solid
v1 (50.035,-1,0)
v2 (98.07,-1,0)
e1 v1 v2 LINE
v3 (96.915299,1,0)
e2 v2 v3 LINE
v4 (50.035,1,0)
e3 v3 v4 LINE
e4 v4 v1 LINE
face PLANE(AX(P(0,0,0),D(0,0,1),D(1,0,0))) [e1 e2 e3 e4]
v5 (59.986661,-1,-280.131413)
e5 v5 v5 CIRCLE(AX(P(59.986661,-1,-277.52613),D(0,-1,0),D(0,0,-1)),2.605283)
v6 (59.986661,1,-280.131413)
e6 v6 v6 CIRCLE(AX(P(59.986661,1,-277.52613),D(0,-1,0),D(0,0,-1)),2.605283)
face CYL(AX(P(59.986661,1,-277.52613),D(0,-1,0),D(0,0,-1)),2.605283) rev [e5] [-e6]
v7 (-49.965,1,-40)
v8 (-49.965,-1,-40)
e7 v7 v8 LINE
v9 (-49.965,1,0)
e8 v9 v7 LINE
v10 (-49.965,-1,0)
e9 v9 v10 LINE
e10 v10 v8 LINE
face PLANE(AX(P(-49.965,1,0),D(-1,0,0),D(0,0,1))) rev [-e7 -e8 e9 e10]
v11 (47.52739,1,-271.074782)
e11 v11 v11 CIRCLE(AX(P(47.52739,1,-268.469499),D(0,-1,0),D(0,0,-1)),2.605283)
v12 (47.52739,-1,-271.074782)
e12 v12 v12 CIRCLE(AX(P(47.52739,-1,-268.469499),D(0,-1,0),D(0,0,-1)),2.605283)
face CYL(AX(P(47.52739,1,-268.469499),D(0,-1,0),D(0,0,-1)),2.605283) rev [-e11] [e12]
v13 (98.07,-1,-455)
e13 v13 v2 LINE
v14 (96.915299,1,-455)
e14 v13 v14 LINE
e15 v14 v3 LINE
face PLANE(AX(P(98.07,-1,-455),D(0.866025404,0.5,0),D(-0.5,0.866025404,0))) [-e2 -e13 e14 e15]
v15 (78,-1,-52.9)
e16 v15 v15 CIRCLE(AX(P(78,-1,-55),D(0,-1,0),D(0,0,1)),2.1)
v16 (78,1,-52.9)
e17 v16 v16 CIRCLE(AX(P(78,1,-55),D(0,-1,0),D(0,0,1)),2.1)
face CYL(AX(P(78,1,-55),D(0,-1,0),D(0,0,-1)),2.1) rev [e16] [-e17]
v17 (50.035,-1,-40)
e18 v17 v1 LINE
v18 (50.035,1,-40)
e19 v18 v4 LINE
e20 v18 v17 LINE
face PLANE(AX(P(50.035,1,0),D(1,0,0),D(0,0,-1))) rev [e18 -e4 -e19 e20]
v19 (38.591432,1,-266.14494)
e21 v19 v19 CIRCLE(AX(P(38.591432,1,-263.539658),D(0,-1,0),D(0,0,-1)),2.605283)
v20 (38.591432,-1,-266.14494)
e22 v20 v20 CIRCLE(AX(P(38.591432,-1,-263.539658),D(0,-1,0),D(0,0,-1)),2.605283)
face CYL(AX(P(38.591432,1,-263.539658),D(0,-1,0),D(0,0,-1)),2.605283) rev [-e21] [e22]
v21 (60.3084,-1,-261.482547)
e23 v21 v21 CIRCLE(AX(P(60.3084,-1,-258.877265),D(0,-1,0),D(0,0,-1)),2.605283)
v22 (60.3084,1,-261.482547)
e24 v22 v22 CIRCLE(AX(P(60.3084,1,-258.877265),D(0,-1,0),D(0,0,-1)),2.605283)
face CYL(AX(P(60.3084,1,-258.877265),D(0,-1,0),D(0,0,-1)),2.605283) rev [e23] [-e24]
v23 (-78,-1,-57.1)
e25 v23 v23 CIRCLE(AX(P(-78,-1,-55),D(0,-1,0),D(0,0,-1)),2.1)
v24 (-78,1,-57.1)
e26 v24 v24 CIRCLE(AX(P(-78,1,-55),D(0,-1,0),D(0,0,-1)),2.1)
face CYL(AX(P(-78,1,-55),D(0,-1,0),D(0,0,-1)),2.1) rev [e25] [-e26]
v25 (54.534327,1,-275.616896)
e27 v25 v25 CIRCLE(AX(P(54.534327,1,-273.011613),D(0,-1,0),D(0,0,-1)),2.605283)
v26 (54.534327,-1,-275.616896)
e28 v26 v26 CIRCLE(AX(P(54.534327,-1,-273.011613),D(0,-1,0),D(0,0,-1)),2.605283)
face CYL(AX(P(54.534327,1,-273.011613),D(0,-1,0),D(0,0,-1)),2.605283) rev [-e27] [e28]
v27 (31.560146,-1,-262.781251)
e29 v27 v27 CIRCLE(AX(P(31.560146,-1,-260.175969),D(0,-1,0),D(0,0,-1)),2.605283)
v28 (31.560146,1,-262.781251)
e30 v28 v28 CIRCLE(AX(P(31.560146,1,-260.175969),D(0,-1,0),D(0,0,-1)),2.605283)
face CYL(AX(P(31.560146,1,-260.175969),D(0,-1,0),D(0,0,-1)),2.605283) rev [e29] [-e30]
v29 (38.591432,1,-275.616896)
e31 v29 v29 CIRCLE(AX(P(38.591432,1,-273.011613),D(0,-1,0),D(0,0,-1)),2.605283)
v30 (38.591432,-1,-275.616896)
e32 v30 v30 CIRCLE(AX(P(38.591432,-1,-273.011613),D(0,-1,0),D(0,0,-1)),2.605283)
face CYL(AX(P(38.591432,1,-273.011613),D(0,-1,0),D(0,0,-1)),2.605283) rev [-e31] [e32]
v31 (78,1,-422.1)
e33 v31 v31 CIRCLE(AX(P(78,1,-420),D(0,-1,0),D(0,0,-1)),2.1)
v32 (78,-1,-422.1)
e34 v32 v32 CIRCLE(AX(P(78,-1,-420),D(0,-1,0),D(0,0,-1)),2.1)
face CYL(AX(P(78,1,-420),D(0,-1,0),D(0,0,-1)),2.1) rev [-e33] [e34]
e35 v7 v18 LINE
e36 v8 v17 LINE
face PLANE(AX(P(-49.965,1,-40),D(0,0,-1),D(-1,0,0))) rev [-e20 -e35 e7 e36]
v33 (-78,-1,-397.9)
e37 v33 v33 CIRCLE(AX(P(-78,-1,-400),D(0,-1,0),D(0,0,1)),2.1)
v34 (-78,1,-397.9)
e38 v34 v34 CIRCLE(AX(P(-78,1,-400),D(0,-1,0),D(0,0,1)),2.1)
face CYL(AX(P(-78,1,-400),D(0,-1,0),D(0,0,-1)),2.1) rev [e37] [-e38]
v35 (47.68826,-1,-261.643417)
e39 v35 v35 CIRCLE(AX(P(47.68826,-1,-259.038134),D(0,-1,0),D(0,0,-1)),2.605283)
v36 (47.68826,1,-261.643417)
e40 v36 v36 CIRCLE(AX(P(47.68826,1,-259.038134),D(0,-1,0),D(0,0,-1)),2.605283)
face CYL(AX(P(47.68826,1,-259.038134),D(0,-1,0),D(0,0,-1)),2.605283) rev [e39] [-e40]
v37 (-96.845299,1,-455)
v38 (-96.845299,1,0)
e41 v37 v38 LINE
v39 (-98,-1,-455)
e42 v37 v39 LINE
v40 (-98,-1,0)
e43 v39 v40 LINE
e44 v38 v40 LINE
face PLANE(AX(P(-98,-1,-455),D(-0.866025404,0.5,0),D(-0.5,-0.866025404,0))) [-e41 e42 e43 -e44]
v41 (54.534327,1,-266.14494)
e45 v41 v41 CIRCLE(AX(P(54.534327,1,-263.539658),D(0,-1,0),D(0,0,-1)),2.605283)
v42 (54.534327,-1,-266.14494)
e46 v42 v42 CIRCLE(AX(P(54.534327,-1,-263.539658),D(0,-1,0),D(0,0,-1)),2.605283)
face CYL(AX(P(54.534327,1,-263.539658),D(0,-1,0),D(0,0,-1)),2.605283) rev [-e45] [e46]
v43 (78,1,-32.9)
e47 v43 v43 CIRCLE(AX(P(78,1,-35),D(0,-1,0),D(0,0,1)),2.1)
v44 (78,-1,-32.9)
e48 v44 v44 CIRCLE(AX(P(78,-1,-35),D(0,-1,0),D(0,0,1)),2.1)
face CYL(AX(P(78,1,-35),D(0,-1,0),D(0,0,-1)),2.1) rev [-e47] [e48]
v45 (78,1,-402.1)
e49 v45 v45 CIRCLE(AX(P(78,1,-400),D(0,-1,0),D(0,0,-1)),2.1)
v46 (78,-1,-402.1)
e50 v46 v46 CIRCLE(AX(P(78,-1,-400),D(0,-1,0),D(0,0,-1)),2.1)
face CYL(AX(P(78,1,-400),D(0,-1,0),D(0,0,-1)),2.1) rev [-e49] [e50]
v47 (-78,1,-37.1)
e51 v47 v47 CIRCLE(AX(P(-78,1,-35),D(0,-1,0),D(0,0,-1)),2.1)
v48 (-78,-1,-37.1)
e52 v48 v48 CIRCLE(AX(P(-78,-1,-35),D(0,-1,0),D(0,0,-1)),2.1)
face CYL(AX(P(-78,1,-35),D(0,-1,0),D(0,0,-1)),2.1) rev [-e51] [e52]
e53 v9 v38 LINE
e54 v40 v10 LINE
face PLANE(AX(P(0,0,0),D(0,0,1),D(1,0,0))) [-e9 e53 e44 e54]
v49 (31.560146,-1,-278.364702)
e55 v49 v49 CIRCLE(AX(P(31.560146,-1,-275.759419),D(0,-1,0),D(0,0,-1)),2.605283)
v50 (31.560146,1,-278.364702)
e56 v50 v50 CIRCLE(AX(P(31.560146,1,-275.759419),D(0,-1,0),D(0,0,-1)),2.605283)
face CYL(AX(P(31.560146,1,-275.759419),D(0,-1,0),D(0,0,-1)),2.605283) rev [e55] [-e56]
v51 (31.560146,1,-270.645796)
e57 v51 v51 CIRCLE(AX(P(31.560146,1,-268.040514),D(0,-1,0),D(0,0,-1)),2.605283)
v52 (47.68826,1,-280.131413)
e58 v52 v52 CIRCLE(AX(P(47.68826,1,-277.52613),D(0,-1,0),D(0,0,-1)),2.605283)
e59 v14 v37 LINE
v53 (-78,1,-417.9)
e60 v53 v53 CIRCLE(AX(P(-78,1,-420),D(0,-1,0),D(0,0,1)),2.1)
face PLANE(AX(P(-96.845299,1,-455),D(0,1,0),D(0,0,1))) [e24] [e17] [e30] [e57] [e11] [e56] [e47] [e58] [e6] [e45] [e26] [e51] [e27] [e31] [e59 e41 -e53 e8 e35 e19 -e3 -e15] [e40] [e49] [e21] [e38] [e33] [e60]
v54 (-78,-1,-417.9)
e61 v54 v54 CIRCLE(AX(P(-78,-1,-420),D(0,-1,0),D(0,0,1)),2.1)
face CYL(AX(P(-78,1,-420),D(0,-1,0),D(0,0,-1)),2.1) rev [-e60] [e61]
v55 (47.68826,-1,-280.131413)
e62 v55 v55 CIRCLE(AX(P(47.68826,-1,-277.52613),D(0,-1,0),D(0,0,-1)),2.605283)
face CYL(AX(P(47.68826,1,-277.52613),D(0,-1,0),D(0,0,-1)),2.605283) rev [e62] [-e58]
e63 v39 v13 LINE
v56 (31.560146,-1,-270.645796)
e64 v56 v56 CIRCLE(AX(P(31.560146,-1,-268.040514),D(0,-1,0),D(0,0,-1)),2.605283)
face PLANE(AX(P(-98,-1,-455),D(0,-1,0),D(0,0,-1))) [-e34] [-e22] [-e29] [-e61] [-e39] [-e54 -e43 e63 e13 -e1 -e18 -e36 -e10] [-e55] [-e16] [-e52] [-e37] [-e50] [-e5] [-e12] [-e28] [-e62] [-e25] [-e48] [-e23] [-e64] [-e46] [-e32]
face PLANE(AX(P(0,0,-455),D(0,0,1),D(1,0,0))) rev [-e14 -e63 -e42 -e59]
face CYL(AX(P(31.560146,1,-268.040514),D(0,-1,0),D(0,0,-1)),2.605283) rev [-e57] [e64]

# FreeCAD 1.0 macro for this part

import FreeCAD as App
import Part
import Sketcher
Q = App.Units.Quantity


def add_polygon(sketch, points):
    """Adds a closed chain of lines whose ends are joined by coincident constraints."""
    first, n = sketch.GeometryCount, len(points)
    for a, b in zip(points, points[1:] + points[:1]):
        sketch.addGeometry(Part.LineSegment(App.Vector(*a, 0), App.Vector(*b, 0)), False)
    for i in range(n):
        sketch.addConstraint(Sketcher.Constraint("Coincident", first + i, 2, first + (i + 1) % n, 1))

doc = App.newDocument("Part")
body = doc.addObject("PartDesign::Body", "Body")

sketch1 = body.newObject("Sketcher::SketchObject", "Sketch")
sketch1.AttachmentSupport = (doc.getObject("XY_Plane"), [""])
sketch1.MapMode = "FlatFace"
add_polygon(sketch1, [(-96.8, 1), (-98, -1), (98.1, -1), (96.9, 1)])
sketch1.addConstraint(Sketcher.Constraint("Horizontal", 1))
sketch1.addConstraint(Sketcher.Constraint("Horizontal", 3))
sketch1.addConstraint(Sketcher.Constraint("Equal", 0, 2))
sketch1.addConstraint(Sketcher.Constraint("Angle", 0, Q("-120 deg")))
sketch1.addConstraint(Sketcher.Constraint("DistanceX", 0, 2, -1, 1, 98.0))
sketch1.addConstraint(Sketcher.Constraint("DistanceY", 0, 2, -1, 1, 1.0))
sketch1.addConstraint(Sketcher.Constraint("DistanceY", -1, 1, 2, 2, 1.0))
sketch1.addConstraint(Sketcher.Constraint("DistanceX", 1, 1, 1, 2, 196.07))
pad1 = body.newObject("PartDesign::Pad", "Pad")
pad1.Profile = sketch1
pad1.Length = 455
pad1.Reversed = True

sketch2 = body.newObject("Sketcher::SketchObject", "Sketch001")
sketch2.AttachmentSupport = (doc.getObject("XZ_Plane"), [""])
sketch2.MapMode = "FlatFace"
sketch2.AttachmentOffset = App.Placement(App.Vector(0, 0, 1), App.Rotation())
sketch2.addGeometry(Part.Circle(App.Vector(-78, -35, 0), App.Vector(0, 0, 1), 2.1), False)
sketch2.addGeometry(Part.Circle(App.Vector(-78, -55, 0), App.Vector(0, 0, 1), 2.1), False)
sketch2.addGeometry(Part.Circle(App.Vector(78, -55, 0), App.Vector(0, 0, 1), 2.1), False)
sketch2.addGeometry(Part.Circle(App.Vector(78, -35, 0), App.Vector(0, 0, 1), 2.1), False)
sketch2.addGeometry(Part.Circle(App.Vector(78, -420, 0), App.Vector(0, 0, 1), 2.1), False)
sketch2.addGeometry(Part.Circle(App.Vector(78, -400, 0), App.Vector(0, 0, 1), 2.1), False)
sketch2.addGeometry(Part.Circle(App.Vector(-78, -400, 0), App.Vector(0, 0, 1), 2.1), False)
sketch2.addGeometry(Part.Circle(App.Vector(-78, -420, 0), App.Vector(0, 0, 1), 2.1), False)
sketch2.addConstraint(Sketcher.Constraint("Equal", 0, 1))
sketch2.addConstraint(Sketcher.Constraint("Equal", 1, 2))
sketch2.addConstraint(Sketcher.Constraint("Equal", 2, 3))
sketch2.addConstraint(Sketcher.Constraint("Equal", 3, 4))
sketch2.addConstraint(Sketcher.Constraint("Equal", 4, 5))
sketch2.addConstraint(Sketcher.Constraint("Equal", 5, 6))
sketch2.addConstraint(Sketcher.Constraint("Equal", 6, 7))
sketch2.addConstraint(Sketcher.Constraint("Symmetric", 1, 3, 2, 3, -2))
sketch2.addConstraint(Sketcher.Constraint("Symmetric", 0, 3, 3, 3, -2))
sketch2.addConstraint(Sketcher.Constraint("Symmetric", 5, 3, 6, 3, -2))
sketch2.addConstraint(Sketcher.Constraint("Symmetric", 4, 3, 7, 3, -2))
sketch2.addConstraint(Sketcher.Constraint("Vertical", 0, 3, 1, 3))
sketch2.addConstraint(Sketcher.Constraint("Vertical", 3, 3, 4, 3))
sketch2.addConstraint(Sketcher.Constraint("Vertical", 4, 3, 5, 3))
sketch2.addConstraint(Sketcher.Constraint("Diameter", 0, 4.2))
sketch2.addConstraint(Sketcher.Constraint("DistanceX", 0, 3, -1, 1, 78.0))
sketch2.addConstraint(Sketcher.Constraint("DistanceY", 0, 3, -1, 1, 35.0))
sketch2.addConstraint(Sketcher.Constraint("DistanceY", 1, 3, -1, 1, 55.0))
sketch2.addConstraint(Sketcher.Constraint("DistanceY", 4, 3, -1, 1, 420.0))
sketch2.addConstraint(Sketcher.Constraint("DistanceY", 5, 3, -1, 1, 400.0))
pocket1 = body.newObject("PartDesign::Pocket", "Pocket")
pocket1.Profile = sketch2
pocket1.Type = "ThroughAll"

sketch3 = body.newObject("Sketcher::SketchObject", "Sketch002")
sketch3.AttachmentSupport = (doc.getObject("XZ_Plane"), [""])
sketch3.MapMode = "FlatFace"
sketch3.AttachmentOffset = App.Placement(App.Vector(0, 0, 1), App.Rotation())
add_polygon(sketch3, [(-50, 0), (-50, -40), (50, -40), (50, 0)])
sketch3.addConstraint(Sketcher.Constraint("Vertical", 0))
sketch3.addConstraint(Sketcher.Constraint("Horizontal", 1))
sketch3.addConstraint(Sketcher.Constraint("Vertical", 2))
sketch3.addConstraint(Sketcher.Constraint("Horizontal", 3))
sketch3.addConstraint(Sketcher.Constraint("PointOnObject", 2, 2, -1))
sketch3.addConstraint(Sketcher.Constraint("DistanceX", 1, 1, 1, 2, 100.0))
sketch3.addConstraint(Sketcher.Constraint("DistanceY", 0, 2, 0, 1, 40.0))
sketch3.addConstraint(Sketcher.Constraint("DistanceX", 0, 2, -1, 1, 49.965))
pocket2 = body.newObject("PartDesign::Pocket", "Pocket001")
pocket2.Profile = sketch3
pocket2.Type = "ThroughAll"

sketch4 = body.newObject("Sketcher::SketchObject", "Sketch003")
sketch4.AttachmentSupport = (doc.getObject("XZ_Plane"), [""])
sketch4.MapMode = "FlatFace"
sketch4.AttachmentOffset = App.Placement(App.Vector(0, 0, 1), App.Rotation())
sketch4.addGeometry(Part.Circle(App.Vector(31.6, -260.2, 0), App.Vector(0, 0, 1), 2.6), False)
sketch4.addGeometry(Part.Circle(App.Vector(31.6, -268, 0), App.Vector(0, 0, 1), 2.6), False)
sketch4.addGeometry(Part.Circle(App.Vector(31.6, -275.8, 0), App.Vector(0, 0, 1), 2.6), False)
sketch4.addGeometry(Part.Circle(App.Vector(38.6, -263.5, 0), App.Vector(0, 0, 1), 2.6), False)
sketch4.addGeometry(Part.Circle(App.Vector(38.6, -273, 0), App.Vector(0, 0, 1), 2.6), False)
sketch4.addGeometry(Part.Circle(App.Vector(47.5, -268.5, 0), App.Vector(0, 0, 1), 2.6), False)
sketch4.addGeometry(Part.Circle(App.Vector(54.5, -263.5, 0), App.Vector(0, 0, 1), 2.6), False)
sketch4.addGeometry(Part.Circle(App.Vector(54.5, -273, 0), App.Vector(0, 0, 1), 2.6), False)
sketch4.addGeometry(Part.Circle(App.Vector(47.7, -277.5, 0), App.Vector(0, 0, 1), 2.6), False)
sketch4.addGeometry(Part.Circle(App.Vector(47.7, -259, 0), App.Vector(0, 0, 1), 2.6), False)
sketch4.addGeometry(Part.Circle(App.Vector(60.3, -258.9, 0), App.Vector(0, 0, 1), 2.6), False)
sketch4.addGeometry(Part.Circle(App.Vector(60, -277.5, 0), App.Vector(0, 0, 1), 2.6), False)
sketch4.addConstraint(Sketcher.Constraint("Equal", 0, 1))
sketch4.addConstraint(Sketcher.Constraint("Equal", 1, 2))
sketch4.addConstraint(Sketcher.Constraint("Equal", 2, 3))
sketch4.addConstraint(Sketcher.Constraint("Equal", 3, 4))
sketch4.addConstraint(Sketcher.Constraint("Equal", 4, 5))
sketch4.addConstraint(Sketcher.Constraint("Equal", 5, 6))
sketch4.addConstraint(Sketcher.Constraint("Equal", 6, 7))
sketch4.addConstraint(Sketcher.Constraint("Equal", 7, 8))
sketch4.addConstraint(Sketcher.Constraint("Equal", 8, 9))
sketch4.addConstraint(Sketcher.Constraint("Equal", 9, 10))
sketch4.addConstraint(Sketcher.Constraint("Equal", 10, 11))
sketch4.addConstraint(Sketcher.Constraint("Horizontal", 3, 3, 6, 3))
sketch4.addConstraint(Sketcher.Constraint("Horizontal", 4, 3, 7, 3))
sketch4.addConstraint(Sketcher.Constraint("Horizontal", 8, 3, 11, 3))
sketch4.addConstraint(Sketcher.Constraint("Vertical", 0, 3, 1, 3))
sketch4.addConstraint(Sketcher.Constraint("Vertical", 1, 3, 2, 3))
sketch4.addConstraint(Sketcher.Constraint("Vertical", 3, 3, 4, 3))
sketch4.addConstraint(Sketcher.Constraint("Vertical", 6, 3, 7, 3))
sketch4.addConstraint(Sketcher.Constraint("Vertical", 8, 3, 9, 3))
sketch4.addConstraint(Sketcher.Constraint("Diameter", 0, 5.210565))
sketch4.addConstraint(Sketcher.Constraint("DistanceY", 5, 3, -1, 1, 268.469499))
sketch4.addConstraint(Sketcher.Constraint("DistanceX", -1, 1, 10, 3, 60.3084))
sketch4.addConstraint(Sketcher.Constraint("DistanceY", 4, 3, 1, 3, 4.971099))
sketch4.addConstraint(Sketcher.Constraint("DistanceX", 8, 3, 11, 3, 12.298401))
sketch4.addConstraint(Sketcher.Constraint("DistanceY", 0, 3, -1, 1, 260.175969))
sketch4.addConstraint(Sketcher.Constraint("DistanceY", 2, 3, -1, 1, 275.759419))
sketch4.addConstraint(Sketcher.Constraint("DistanceX", -1, 1, 3, 3, 38.591432))
sketch4.addConstraint(Sketcher.Constraint("DistanceX", -1, 1, 5, 3, 47.52739))
sketch4.addConstraint(Sketcher.Constraint("DistanceX", -1, 1, 8, 3, 47.68826))
sketch4.addConstraint(Sketcher.Constraint("DistanceY", 8, 3, -1, 1, 277.52613))
sketch4.addConstraint(Sketcher.Constraint("DistanceY", 3, 3, 0, 3, 3.363689))
sketch4.addConstraint(Sketcher.Constraint("DistanceX", 0, 3, 6, 3, 22.974181))
sketch4.addConstraint(Sketcher.Constraint("DistanceY", 7, 3, 9, 3, 13.973479))
sketch4.addConstraint(Sketcher.Constraint("DistanceY", 9, 3, 10, 3, 0.16087))
sketch4.addConstraint(Sketcher.Constraint("DistanceX", -1, 1, 0, 3, 31.560146))
sketch4.addConstraint(Sketcher.Constraint("DistanceY", 1, 3, -1, 1, 268.040514))
pocket3 = body.newObject("PartDesign::Pocket", "Pocket002")
pocket3.Profile = sketch4
pocket3.Type = "ThroughAll"

doc.recompute()
